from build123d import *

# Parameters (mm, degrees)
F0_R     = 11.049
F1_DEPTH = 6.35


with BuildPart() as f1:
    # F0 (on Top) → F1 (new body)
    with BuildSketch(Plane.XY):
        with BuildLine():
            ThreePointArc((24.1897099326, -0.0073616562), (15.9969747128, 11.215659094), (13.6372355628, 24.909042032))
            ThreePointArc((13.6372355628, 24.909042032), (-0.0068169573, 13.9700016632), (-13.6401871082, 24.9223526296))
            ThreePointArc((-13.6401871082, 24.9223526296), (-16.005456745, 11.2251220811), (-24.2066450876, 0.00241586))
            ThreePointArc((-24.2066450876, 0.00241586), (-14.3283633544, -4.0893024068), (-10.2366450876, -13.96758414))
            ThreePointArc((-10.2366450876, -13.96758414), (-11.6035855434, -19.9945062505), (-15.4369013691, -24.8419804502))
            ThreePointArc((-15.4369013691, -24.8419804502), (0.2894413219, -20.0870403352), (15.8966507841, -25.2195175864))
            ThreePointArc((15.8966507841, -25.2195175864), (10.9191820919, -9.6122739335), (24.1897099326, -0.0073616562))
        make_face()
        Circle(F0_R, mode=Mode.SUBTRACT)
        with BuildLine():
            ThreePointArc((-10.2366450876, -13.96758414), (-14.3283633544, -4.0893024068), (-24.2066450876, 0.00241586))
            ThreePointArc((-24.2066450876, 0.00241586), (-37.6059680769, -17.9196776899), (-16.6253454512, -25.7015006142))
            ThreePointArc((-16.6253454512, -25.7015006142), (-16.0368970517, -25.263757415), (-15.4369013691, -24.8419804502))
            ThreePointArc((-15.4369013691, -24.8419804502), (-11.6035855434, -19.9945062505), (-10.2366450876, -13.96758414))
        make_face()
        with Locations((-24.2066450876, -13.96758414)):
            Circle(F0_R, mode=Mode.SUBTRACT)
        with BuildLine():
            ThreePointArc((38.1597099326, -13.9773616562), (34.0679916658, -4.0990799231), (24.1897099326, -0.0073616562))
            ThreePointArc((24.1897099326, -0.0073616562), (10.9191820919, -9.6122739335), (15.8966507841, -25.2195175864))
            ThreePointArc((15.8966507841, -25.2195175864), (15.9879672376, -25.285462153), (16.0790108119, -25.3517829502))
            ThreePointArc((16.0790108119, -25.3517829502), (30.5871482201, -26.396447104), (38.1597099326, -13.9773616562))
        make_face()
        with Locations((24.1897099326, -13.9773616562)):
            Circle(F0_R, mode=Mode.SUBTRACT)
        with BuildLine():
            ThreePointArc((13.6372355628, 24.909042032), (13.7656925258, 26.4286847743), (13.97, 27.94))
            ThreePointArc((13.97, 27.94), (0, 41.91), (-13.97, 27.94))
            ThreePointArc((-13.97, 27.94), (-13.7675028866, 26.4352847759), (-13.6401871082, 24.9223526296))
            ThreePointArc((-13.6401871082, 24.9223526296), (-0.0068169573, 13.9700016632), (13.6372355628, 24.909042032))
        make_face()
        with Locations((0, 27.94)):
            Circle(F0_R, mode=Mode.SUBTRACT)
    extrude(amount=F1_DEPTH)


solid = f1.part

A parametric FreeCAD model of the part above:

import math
import FreeCAD as App
import Part
import Sketcher
Q = App.Units.Quantity

doc = App.newDocument("Part")
params = doc.addObject("Spreadsheet::Sheet", "Params")
for row, (alias, value) in enumerate([
    ("sketch1_radius", "1.2 in"),
    ("sketch1_diameter", "0.87 in"),
    ("sketch1_radius2", "0.55 in"),
    ("pad1_length", "0.25 in"),
], start=1):
    params.set(f"A{row}", alias)
    params.set(f"B{row}", "=" + value)
    params.setAlias(f"B{row}", alias)

body = doc.addObject("PartDesign::Body", "Body")

# Sketch on XY plane
sketch1 = body.newObject("Sketcher::SketchObject", "Sketch")
sketch1.AttachmentSupport = (doc.getObject("XY_Plane"), [""])
sketch1.MapMode = "FlatFace"
sketch1.addGeometry([
    Part.ArcOfCircle(Part.Circle(App.Vector(44.06, 23.1, 0), App.Vector(0, 0, 1), 30.48), math.radians(177), math.radians(229)),  # 0
    Part.ArcOfCircle(Part.Circle(App.Vector(44.06, 23.1, 0), App.Vector(0, 0, 1), 30.48), math.radians(170.87), math.radians(176.6)),  # 1
    Part.ArcOfCircle(Part.Circle(App.Vector(0, 27.94, 0), App.Vector(0, 0, 1), 13.97), math.radians(0), math.radians(180)),  # 2
    Part.ArcOfCircle(Part.Circle(App.Vector(-44.07, 23.12, 0), App.Vector(0, 0, 1), 30.48), math.radians(3.38), math.radians(9.09)),  # 3
    Part.ArcOfCircle(Part.Circle(App.Vector(-44.07, 23.12, 0), App.Vector(0, 0, 1), 30.48), math.radians(-49), math.radians(3)),  # 4
    Part.ArcOfCircle(Part.Circle(App.Vector(-24.21, -13.97, 0), App.Vector(0, 0, 1), 13.97), math.radians(90), math.radians(303)),  # 5
    Part.ArcOfCircle(Part.Circle(App.Vector(-0.04, -47.38, 0), App.Vector(0, 0, 1), 27.3), math.radians(124.34), math.radians(127.42)),  # 6
    Part.ArcOfCircle(Part.Circle(App.Vector(-0.04, -47.38, 0), App.Vector(0, 0, 1), 27.3), math.radians(54), math.radians(124)),  # 7
    Part.ArcOfCircle(Part.Circle(App.Vector(-0.04, -47.38, 0), App.Vector(0, 0, 1), 27.3), math.radians(53.81), math.radians(54.28)),  # 8
    Part.ArcOfCircle(Part.Circle(App.Vector(24.19, -13.98, 0), App.Vector(0, 0, 1), 13.97), math.radians(-125), math.radians(0)),  # 9
    Part.ArcOfCircle(Part.Circle(App.Vector(24.19, -13.98, 0), App.Vector(0, 0, 1), 13.97), math.radians(0), math.radians(90)),  # 10
    Part.Circle(App.Vector(-24.21, -13.97, 0), App.Vector(0, 0, 1), 11.05),  # 11
    Part.Circle(App.Vector(24.19, -13.98, 0), App.Vector(0, 0, 1), 11.05),  # 12
    Part.Circle(App.Vector(0, 0, 0), App.Vector(0, 0, 1), 11.05),  # 13
    Part.Circle(App.Vector(0, 27.94, 0), App.Vector(0, 0, 1), 11.05),  # 14
], False)
sketch1.addConstraint([
    Sketcher.Constraint("Tangent", 0, 1, 1, 2),
    Sketcher.Constraint("Coincident", 1, 1, 2, 1),
    Sketcher.Constraint("Coincident", 2, 2, 3, 2),
    Sketcher.Constraint("Tangent", 3, 1, 4, 2),
    Sketcher.Constraint("Coincident", 4, 1, 5, 1),
    Sketcher.Constraint("Coincident", 5, 2, 6, 2),
    Sketcher.Constraint("Tangent", 6, 1, 7, 2),
    Sketcher.Constraint("Tangent", 7, 1, 8, 2),
    Sketcher.Constraint("Coincident", 8, 1, 9, 1),
    Sketcher.Constraint("Tangent", 9, 2, 10, 1),
    Sketcher.Constraint("Coincident", 10, 2, 0, 2),
    Sketcher.Constraint("Coincident", 13, 3, -1, 1),
    Sketcher.Constraint("Coincident", 8, 3, 6, 3),
    Sketcher.Constraint("Coincident", 11, 3, 5, 3),
    Sketcher.Constraint("Coincident", 12, 3, 9, 3),
    Sketcher.Constraint("Coincident", 14, 3, 2, 3),
    Sketcher.Constraint("Equal", 0, 1),
    Sketcher.Constraint("Equal", 1, 3),
    Sketcher.Constraint("Equal", 3, 4),
    Sketcher.Constraint("Equal", 2, 5),
    Sketcher.Constraint("Equal", 5, 9),
    Sketcher.Constraint("Equal", 9, 10),
    Sketcher.Constraint("Equal", 11, 12),
    Sketcher.Constraint("Equal", 12, 13),
    Sketcher.Constraint("Equal", 13, 14),
    Sketcher.Constraint("Symmetric", 1, 1, 2, 2, -2),
    Sketcher.Constraint("Horizontal", 14, 3, 1, 1),
    Sketcher.Constraint("Horizontal", 12, 3, 9, 2),
    Sketcher.Constraint("Vertical", 11, 3, 4, 1),
    Sketcher.Constraint("Vertical", 12, 3, 10, 2),
    Sketcher.Constraint("Radius", 0, Q("1.2 in")),
    Sketcher.Constraint("Diameter", 11, Q("0.87 in")),
    Sketcher.Constraint("Radius", 2, Q("0.55 in")),
    Sketcher.Constraint("DistanceY", -1, 1, 2, 3, Q("1.1 in")),
    Sketcher.Constraint("Radius", 6, 27.298101),
    Sketcher.Constraint("DistanceY", 4, 1, 3, 1, Q("0.9810999 in")),
    Sketcher.Constraint("DistanceY", 5, 2, -1, 1, 25.701501),
    Sketcher.Constraint("DistanceX", 6, 1, -1, 1, 15.436901),
    Sketcher.Constraint("DistanceY", 5, 3, 1, 3, 37.069902),
    Sketcher.Constraint("DistanceY", 6, 3, 9, 3, 33.405798),
    Sketcher.Constraint("DistanceX", 5, 3, 5, 2, 7.5813),
    Sketcher.Constraint("DistanceX", 6, 3, 7, 1, 15.9361),
    Sketcher.Constraint("DistanceX", 8, 1, 9, 3, 8.110699),
    Sketcher.Constraint("DistanceX", 3, 3, -1, 1, 44.067071),
    Sketcher.Constraint("DistanceY", 0, 1, 3, 1, 0.013311),
])
sketch1.setExpression("Constraints[30]", "Params.sketch1_radius")
sketch1.setExpression("Constraints[31]", "Params.sketch1_diameter")
sketch1.setExpression("Constraints[32]", "Params.sketch1_radius2")
pad1 = body.newObject("PartDesign::Pad", "Pad")
pad1.Profile = sketch1
pad1.setExpression("Length", "Params.pad1_length")

doc.recompute()
